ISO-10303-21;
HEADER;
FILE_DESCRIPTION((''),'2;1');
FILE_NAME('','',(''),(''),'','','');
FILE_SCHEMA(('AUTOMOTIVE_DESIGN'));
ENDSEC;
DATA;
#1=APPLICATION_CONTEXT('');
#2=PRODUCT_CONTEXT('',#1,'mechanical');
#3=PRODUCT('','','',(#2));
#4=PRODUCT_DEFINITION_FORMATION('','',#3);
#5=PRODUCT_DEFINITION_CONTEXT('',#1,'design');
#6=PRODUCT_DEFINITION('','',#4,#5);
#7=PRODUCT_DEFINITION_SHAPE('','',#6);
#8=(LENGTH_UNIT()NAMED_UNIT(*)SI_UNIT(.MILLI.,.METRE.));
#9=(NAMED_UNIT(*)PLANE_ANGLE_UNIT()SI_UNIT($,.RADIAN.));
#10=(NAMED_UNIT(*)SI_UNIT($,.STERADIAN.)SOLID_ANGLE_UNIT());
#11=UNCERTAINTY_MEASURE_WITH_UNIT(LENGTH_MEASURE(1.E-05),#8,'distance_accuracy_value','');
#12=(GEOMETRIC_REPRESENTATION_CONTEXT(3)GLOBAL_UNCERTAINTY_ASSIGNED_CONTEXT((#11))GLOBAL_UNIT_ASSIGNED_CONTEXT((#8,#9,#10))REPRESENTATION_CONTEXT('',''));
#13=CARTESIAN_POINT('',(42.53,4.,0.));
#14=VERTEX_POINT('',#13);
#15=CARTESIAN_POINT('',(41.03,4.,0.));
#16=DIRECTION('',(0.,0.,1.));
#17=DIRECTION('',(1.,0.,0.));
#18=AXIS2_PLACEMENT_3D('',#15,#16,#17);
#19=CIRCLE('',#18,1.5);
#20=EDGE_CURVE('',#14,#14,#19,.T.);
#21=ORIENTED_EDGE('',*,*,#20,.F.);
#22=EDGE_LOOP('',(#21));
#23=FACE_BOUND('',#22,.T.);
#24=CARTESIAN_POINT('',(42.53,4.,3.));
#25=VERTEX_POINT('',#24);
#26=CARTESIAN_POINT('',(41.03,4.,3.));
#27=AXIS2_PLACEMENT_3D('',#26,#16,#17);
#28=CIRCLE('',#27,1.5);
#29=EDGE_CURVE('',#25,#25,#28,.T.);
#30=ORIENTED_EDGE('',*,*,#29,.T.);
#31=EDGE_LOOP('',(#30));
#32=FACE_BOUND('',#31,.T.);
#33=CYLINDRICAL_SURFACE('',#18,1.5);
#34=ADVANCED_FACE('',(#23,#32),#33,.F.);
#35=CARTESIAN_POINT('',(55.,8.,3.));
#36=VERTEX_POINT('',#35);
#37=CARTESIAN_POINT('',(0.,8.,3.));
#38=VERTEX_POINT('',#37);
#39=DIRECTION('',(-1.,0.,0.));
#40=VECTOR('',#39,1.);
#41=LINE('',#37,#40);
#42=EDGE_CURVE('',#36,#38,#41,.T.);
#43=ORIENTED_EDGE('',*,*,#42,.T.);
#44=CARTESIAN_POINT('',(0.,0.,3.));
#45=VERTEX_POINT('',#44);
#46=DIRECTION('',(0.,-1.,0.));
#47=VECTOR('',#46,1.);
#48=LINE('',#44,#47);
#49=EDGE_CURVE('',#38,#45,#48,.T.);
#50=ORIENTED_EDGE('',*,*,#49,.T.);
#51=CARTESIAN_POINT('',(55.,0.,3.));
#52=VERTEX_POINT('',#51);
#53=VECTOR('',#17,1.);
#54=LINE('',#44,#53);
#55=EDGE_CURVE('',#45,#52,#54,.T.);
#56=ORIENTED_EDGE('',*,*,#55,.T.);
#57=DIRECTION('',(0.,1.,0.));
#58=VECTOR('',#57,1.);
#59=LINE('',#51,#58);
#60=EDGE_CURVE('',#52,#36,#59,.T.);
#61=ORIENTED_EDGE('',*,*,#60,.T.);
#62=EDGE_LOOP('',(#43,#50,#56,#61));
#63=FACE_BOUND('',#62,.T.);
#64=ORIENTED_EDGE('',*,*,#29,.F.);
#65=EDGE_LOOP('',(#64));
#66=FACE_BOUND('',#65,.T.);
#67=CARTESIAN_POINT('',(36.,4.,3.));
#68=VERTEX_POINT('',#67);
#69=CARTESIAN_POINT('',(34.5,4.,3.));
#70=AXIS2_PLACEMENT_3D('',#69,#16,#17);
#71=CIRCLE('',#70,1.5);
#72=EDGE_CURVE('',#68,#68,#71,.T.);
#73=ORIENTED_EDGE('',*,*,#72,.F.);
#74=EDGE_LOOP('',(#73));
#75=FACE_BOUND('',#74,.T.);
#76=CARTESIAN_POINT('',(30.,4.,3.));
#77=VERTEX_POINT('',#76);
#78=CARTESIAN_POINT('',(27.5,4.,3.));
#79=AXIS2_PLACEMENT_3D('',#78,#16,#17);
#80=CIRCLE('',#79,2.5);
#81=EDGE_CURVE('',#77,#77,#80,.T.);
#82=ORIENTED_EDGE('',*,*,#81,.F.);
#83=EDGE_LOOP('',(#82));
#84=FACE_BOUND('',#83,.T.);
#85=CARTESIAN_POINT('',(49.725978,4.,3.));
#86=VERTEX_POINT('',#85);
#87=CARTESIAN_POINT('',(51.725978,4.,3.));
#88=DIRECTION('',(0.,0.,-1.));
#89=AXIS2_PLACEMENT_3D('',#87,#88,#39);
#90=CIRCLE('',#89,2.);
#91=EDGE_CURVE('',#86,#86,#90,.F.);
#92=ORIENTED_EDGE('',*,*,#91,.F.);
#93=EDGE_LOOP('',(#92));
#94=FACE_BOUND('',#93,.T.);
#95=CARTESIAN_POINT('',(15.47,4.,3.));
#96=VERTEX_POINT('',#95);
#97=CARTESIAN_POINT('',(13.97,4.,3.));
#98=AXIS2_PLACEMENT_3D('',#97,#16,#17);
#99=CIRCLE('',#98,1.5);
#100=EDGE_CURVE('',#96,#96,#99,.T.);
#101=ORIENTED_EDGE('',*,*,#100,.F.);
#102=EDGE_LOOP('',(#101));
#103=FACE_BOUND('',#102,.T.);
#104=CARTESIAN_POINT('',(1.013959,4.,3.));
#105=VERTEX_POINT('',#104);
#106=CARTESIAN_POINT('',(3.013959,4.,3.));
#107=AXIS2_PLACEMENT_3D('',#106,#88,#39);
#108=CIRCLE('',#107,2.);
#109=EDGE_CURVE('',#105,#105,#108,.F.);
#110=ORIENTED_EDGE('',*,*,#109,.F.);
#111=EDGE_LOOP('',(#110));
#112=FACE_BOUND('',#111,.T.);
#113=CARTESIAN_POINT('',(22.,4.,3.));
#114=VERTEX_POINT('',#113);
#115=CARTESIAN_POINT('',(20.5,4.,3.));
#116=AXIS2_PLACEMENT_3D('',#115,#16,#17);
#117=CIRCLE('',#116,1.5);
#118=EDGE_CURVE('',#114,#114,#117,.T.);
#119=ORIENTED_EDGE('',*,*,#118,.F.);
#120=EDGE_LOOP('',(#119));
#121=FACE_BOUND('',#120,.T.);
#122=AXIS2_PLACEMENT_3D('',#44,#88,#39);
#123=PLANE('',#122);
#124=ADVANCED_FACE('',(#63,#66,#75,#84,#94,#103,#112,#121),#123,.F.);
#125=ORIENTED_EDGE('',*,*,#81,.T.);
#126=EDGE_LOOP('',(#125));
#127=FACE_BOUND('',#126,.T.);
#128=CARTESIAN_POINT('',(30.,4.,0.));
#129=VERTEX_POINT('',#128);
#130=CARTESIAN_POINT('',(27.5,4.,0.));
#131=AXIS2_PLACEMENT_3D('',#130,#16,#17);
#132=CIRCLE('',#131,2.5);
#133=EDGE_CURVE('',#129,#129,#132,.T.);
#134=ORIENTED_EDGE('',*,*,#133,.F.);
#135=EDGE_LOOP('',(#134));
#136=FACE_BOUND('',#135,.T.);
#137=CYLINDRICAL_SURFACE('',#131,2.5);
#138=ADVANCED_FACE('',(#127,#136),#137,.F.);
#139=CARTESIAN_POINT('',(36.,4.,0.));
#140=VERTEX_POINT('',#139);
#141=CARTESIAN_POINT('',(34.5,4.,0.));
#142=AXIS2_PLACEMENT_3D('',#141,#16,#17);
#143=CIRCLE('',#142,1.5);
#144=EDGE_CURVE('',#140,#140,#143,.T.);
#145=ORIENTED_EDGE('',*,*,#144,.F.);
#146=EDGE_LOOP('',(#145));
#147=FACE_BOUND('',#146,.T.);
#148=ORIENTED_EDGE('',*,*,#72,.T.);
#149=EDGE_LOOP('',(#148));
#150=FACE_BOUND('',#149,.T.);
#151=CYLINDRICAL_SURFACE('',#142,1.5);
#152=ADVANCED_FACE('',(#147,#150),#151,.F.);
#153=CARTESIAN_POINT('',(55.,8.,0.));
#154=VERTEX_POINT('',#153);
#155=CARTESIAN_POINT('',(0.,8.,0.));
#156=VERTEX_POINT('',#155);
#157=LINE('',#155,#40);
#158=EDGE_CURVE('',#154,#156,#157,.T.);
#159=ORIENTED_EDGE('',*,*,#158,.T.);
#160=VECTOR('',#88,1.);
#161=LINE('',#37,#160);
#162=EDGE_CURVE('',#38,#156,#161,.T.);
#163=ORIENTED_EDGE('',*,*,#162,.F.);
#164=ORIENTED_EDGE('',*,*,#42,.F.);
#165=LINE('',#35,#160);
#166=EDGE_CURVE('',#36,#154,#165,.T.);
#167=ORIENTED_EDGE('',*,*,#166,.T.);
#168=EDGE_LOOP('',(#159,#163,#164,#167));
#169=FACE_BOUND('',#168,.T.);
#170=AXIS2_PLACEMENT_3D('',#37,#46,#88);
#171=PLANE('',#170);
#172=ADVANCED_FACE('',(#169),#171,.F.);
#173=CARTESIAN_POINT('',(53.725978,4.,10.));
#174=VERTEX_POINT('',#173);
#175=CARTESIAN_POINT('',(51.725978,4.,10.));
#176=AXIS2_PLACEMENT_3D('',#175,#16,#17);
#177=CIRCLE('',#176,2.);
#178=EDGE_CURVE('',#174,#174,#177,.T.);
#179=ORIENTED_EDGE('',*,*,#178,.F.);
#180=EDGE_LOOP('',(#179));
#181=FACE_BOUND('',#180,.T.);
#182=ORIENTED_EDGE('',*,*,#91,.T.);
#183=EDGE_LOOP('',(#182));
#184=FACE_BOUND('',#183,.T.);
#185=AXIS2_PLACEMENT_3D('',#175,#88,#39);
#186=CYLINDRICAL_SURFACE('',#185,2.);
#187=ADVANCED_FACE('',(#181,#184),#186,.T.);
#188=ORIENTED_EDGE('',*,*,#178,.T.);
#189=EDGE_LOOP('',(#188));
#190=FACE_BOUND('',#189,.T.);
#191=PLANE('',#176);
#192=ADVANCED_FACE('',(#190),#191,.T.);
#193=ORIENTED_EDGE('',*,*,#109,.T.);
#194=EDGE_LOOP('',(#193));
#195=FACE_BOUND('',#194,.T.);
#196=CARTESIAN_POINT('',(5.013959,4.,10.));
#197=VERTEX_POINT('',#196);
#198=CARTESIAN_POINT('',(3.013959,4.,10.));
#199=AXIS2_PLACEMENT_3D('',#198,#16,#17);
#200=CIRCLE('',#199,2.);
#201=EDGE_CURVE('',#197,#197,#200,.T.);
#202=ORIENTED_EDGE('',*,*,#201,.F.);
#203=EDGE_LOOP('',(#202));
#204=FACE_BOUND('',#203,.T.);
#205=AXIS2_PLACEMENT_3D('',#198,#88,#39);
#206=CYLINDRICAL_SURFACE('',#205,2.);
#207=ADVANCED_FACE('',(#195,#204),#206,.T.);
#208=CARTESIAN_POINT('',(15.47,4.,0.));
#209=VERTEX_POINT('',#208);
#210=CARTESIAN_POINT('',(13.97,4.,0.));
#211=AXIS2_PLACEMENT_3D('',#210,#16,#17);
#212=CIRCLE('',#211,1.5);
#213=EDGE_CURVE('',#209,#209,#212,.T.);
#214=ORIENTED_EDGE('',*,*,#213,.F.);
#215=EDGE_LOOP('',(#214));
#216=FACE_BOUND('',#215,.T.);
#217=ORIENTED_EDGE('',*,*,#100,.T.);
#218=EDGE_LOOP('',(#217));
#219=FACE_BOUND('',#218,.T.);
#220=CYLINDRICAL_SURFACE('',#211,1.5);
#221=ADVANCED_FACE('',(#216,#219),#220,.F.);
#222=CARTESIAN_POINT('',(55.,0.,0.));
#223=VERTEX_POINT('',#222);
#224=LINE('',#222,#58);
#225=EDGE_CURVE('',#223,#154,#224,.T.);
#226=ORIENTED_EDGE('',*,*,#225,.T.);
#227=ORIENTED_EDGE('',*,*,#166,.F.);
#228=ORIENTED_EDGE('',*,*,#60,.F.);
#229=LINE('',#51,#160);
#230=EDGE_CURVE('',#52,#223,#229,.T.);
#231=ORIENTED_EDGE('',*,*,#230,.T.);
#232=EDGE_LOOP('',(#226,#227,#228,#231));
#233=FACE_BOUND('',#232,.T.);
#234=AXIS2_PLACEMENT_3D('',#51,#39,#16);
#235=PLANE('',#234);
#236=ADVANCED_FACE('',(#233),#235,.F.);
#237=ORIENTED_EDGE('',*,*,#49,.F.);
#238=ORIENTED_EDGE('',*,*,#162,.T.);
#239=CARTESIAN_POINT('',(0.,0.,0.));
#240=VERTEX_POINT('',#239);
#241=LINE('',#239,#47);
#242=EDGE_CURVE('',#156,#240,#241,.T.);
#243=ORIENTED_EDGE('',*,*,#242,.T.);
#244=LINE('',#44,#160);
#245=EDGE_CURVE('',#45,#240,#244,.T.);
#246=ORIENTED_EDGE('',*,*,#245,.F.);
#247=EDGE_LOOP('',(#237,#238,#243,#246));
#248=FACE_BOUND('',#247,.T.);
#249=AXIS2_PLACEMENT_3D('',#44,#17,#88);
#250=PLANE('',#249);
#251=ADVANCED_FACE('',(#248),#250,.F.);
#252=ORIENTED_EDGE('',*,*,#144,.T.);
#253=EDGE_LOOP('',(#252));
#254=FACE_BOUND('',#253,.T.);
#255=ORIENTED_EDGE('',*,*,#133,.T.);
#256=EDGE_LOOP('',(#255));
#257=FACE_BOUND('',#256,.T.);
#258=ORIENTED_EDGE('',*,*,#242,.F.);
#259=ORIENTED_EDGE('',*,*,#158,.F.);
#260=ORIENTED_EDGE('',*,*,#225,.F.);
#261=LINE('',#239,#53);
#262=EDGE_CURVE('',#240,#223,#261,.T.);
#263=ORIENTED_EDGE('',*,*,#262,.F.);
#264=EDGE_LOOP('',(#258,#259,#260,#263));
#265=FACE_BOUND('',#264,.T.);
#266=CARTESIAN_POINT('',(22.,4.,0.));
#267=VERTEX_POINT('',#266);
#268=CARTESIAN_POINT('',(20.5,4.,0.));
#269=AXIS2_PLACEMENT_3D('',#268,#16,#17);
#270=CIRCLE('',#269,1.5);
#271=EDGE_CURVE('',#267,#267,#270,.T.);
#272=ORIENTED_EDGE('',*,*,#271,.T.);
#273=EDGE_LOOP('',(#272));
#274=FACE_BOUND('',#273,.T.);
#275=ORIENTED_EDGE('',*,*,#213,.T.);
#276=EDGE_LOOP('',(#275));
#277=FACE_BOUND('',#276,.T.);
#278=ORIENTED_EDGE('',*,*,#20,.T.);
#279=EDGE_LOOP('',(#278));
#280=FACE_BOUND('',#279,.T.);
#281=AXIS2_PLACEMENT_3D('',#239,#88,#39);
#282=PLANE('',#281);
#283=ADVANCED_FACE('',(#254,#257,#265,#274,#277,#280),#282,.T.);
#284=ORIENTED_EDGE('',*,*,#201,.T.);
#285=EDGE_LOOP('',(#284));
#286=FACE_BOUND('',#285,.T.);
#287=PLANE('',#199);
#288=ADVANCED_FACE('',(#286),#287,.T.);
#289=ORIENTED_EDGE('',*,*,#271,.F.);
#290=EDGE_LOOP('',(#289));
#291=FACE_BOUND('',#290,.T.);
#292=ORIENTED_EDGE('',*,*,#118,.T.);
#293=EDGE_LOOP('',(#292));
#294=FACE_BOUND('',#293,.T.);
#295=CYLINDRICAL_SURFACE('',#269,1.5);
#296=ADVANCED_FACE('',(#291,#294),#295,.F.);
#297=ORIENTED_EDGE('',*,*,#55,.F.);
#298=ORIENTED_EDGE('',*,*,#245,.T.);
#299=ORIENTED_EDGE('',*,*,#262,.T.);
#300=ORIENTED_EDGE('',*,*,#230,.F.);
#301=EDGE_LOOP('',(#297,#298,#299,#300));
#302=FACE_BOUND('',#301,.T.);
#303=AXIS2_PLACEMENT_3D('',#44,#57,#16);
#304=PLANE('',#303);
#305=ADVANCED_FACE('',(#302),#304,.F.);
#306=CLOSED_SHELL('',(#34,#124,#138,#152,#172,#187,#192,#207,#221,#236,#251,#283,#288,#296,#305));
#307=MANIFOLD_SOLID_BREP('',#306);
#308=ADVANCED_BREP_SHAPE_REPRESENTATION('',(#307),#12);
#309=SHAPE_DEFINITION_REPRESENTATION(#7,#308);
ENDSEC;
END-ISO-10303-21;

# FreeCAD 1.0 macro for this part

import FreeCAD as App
import Part
import Sketcher
Q = App.Units.Quantity

doc = App.newDocument("Part")
body = doc.addObject("PartDesign::Body", "Body")

sketch1 = body.newObject("Sketcher::SketchObject", "Sketch")
sketch1.AttachmentSupport = (doc.getObject("XY_Plane"), [""])
sketch1.MapMode = "FlatFace"
sketch1.addGeometry([
    Part.LineSegment(App.Vector(0, 8, 0), App.Vector(0, 0, 0)),
    Part.LineSegment(App.Vector(0, 0, 0), App.Vector(55, 0, 0)),
    Part.LineSegment(App.Vector(55, 0, 0), App.Vector(55, 8, 0)),
    Part.LineSegment(App.Vector(55, 8, 0), App.Vector(0, 8, 0)),
], False)
sketch1.addConstraint([
    Sketcher.Constraint("Coincident", 0, 2, 1, 1),
    Sketcher.Constraint("Coincident", 1, 2, 2, 1),
    Sketcher.Constraint("Coincident", 2, 2, 3, 1),
    Sketcher.Constraint("Coincident", 3, 2, 0, 1),
    Sketcher.Constraint("Vertical", 0),
    Sketcher.Constraint("Horizontal", 1),
    Sketcher.Constraint("Vertical", 2),
    Sketcher.Constraint("Horizontal", 3),
    Sketcher.Constraint("Coincident", 0, 2, -1, 1),
    Sketcher.Constraint("DistanceX", 1, 1, 1, 2, Q("55 mm")),
    Sketcher.Constraint("DistanceY", 0, 2, 0, 1, Q("8 mm")),
])
pad1 = body.newObject("PartDesign::Pad", "Pad")
pad1.Profile = sketch1
pad1.Length = 3

sketch2 = body.newObject("Sketcher::SketchObject", "Sketch001")
sketch2.AttachmentSupport = (doc.getObject("XY_Plane"), [""])
sketch2.MapMode = "FlatFace"
sketch2.AttachmentOffset = App.Placement(App.Vector(0, 0, 3), App.Rotation())
sketch2.addGeometry([
    Part.Circle(App.Vector(14, 4, 0), App.Vector(0, 0, 1), 1.5),
    Part.Circle(App.Vector(20.5, 4, 0), App.Vector(0, 0, 1), 1.5),
    Part.Circle(App.Vector(41, 4, 0), App.Vector(0, 0, 1), 1.5),
    Part.Circle(App.Vector(34.5, 4, 0), App.Vector(0, 0, 1), 1.5),
    Part.Circle(App.Vector(27.5, 4, 0), App.Vector(0, 0, 1), 2.5),
], False)
sketch2.addConstraint([
    Sketcher.Constraint("Equal", 0, 1),
    Sketcher.Constraint("Equal", 1, 2),
    Sketcher.Constraint("Equal", 2, 3),
    Sketcher.Constraint("Horizontal", 0, 3, 1, 3),
    Sketcher.Constraint("Horizontal", 1, 3, 2, 3),
    Sketcher.Constraint("Horizontal", 2, 3, 3, 3),
    Sketcher.Constraint("Horizontal", 3, 3, 4, 3),
    Sketcher.Constraint("Diameter", 0, Q("3 mm")),
    Sketcher.Constraint("Diameter", 4, Q("5 mm")),
    Sketcher.Constraint("DistanceY", -1, 1, 0, 3, Q("4 mm")),
    Sketcher.Constraint("DistanceX", 1, 3, 3, 3, Q("14 mm")),
    Sketcher.Constraint("DistanceX", 1, 3, 4, 3, Q("7 mm")),
    Sketcher.Constraint("DistanceX", -1, 1, 1, 3, Q("20.5 mm")),
    Sketcher.Constraint("DistanceX", -1, 1, 0, 3, Q("13.97 mm")),
    Sketcher.Constraint("DistanceX", -1, 1, 2, 3, Q("41.03 mm")),
])
pocket1 = body.newObject("PartDesign::Pocket", "Pocket")
pocket1.Profile = sketch2
pocket1.Type = "ThroughAll"

sketch3 = body.newObject("Sketcher::SketchObject", "Sketch002")
sketch3.AttachmentSupport = (doc.getObject("XY_Plane"), [""])
sketch3.MapMode = "FlatFace"
sketch3.addGeometry([
    Part.Circle(App.Vector(51.7, 4, 0), App.Vector(0, 0, 1), 2),
    Part.Circle(App.Vector(3, 4, 0), App.Vector(0, 0, 1), 2),
], False)
sketch3.addConstraint([
    Sketcher.Constraint("Equal", 0, 1),
    Sketcher.Constraint("Horizontal", 0, 3, 1, 3),
    Sketcher.Constraint("Diameter", 0, Q("4 mm")),
    Sketcher.Constraint("DistanceY", -1, 1, 0, 3, Q("4 mm")),
    Sketcher.Constraint("DistanceX", -1, 1, 1, 3, Q("3.013959 mm")),
    Sketcher.Constraint("DistanceX", 1, 3, 0, 3, Q("48.712019 mm")),
])
pad2 = body.newObject("PartDesign::Pad", "Pad001")
pad2.Profile = sketch3
pad2.Length = 10

doc.recompute()
